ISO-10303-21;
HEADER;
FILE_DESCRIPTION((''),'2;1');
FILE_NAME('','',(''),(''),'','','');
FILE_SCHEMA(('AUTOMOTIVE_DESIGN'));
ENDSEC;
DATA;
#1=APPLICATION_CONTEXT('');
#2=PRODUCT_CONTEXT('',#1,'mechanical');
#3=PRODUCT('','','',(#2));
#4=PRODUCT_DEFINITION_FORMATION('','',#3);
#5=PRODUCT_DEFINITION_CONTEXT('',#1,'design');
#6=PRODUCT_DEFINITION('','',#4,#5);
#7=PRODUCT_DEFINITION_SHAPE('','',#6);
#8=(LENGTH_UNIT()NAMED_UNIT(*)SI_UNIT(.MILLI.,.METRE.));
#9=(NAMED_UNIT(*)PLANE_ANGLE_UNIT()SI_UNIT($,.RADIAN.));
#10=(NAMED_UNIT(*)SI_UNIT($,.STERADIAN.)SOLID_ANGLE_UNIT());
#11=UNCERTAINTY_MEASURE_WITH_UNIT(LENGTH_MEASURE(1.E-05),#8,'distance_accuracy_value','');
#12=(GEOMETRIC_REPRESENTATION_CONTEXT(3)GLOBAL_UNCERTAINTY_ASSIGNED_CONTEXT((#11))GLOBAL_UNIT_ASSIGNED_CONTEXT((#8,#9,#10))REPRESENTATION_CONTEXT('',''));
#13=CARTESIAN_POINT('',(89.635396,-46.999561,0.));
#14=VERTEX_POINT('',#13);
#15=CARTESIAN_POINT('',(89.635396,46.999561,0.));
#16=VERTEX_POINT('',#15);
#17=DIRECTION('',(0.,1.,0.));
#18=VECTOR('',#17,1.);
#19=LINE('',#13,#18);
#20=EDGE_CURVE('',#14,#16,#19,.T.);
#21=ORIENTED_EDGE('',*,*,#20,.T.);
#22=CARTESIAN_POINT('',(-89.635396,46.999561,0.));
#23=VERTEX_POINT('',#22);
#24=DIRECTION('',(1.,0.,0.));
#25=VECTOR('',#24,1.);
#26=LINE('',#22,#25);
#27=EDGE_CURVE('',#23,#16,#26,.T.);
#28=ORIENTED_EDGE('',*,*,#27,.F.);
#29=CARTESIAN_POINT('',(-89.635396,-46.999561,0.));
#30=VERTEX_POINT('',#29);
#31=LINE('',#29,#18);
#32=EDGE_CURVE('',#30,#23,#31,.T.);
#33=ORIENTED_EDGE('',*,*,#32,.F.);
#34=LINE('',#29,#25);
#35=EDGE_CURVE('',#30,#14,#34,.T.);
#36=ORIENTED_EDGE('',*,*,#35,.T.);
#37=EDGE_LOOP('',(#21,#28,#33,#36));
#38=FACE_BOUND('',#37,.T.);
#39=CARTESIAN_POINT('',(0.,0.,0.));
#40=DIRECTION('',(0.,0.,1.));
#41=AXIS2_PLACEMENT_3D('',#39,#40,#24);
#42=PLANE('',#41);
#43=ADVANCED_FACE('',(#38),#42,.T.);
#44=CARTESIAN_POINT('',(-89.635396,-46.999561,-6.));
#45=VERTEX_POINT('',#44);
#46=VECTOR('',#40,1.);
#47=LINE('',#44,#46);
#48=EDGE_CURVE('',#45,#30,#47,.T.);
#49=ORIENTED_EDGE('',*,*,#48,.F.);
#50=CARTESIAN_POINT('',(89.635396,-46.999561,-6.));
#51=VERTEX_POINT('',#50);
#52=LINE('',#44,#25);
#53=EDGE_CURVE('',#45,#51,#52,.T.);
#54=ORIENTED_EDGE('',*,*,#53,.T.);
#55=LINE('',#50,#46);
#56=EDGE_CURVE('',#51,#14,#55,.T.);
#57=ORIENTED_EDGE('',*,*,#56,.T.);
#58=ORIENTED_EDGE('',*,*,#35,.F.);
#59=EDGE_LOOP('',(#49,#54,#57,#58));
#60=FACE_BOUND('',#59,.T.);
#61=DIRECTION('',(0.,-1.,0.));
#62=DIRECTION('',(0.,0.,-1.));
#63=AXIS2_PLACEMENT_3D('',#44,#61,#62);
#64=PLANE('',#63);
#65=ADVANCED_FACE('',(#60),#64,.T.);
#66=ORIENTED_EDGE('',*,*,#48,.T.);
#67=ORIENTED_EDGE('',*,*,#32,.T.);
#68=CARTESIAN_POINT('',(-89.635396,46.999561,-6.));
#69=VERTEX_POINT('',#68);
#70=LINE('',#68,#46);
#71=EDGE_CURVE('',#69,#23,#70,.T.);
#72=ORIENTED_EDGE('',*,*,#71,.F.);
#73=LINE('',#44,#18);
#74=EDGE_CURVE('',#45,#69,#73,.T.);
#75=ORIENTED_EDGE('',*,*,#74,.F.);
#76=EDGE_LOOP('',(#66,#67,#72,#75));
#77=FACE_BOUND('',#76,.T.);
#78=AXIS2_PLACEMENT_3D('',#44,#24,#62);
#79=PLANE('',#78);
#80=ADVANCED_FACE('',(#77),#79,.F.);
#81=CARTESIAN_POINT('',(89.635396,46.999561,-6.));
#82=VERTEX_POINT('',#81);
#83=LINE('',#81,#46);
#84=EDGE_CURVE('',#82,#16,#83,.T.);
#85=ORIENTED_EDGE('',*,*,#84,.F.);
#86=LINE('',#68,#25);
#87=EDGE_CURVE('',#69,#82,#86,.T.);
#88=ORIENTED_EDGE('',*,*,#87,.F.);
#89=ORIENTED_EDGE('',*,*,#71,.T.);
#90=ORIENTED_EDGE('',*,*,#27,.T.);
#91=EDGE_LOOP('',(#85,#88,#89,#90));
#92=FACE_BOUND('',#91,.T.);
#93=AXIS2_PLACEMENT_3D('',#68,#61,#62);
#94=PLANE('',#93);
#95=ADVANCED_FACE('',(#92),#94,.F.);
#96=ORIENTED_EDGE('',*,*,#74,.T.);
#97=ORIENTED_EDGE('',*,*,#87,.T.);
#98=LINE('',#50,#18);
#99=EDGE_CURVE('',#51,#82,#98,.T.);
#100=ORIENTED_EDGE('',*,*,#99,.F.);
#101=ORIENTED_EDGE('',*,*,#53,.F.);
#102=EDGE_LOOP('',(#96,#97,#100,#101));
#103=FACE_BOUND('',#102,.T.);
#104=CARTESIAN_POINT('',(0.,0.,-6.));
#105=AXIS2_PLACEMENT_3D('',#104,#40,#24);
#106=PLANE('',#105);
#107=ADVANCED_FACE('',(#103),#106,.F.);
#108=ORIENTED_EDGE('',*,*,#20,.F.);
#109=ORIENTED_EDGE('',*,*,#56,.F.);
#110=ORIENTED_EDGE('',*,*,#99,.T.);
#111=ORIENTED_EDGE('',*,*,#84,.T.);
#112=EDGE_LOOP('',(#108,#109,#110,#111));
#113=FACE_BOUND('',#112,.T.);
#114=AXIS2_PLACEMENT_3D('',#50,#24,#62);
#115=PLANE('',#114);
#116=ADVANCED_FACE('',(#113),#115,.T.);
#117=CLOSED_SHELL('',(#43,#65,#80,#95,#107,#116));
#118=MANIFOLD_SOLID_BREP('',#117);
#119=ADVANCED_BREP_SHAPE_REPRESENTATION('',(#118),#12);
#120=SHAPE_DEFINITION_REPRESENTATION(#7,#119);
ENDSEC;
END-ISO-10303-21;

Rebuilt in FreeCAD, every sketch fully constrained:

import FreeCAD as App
import Part
import Sketcher

V = App.Vector
Q = App.Units.Quantity


def add_polygon(sketch, points):
    """Adds a closed chain of lines whose ends are joined by coincident constraints."""
    first, n = sketch.GeometryCount, len(points)
    for a, b in zip(points, points[1:] + points[:1]):
        sketch.addGeometry(Part.LineSegment(App.Vector(*a, 0), App.Vector(*b, 0)), False)
    for i in range(n):
        sketch.addConstraint(Sketcher.Constraint("Coincident", first + i, 2, first + (i + 1) % n, 1))

doc = App.newDocument("Part")
body = doc.addObject("PartDesign::Body", "Body")

# Sketch on XY plane
sketch1 = body.newObject("Sketcher::SketchObject", "Sketch")
sketch1.AttachmentSupport = (doc.getObject("XY_Plane"), [""])
sketch1.MapMode = "FlatFace"
add_polygon(sketch1, [(-89.635396, 46.999561), (-89.635396, -46.999561), (89.635396, -46.999561), (89.635396, 46.999561)])  # lines 0-3
sketch1.addConstraint([
    Sketcher.Constraint("Vertical", 0),
    Sketcher.Constraint("Horizontal", 1),
    Sketcher.Constraint("Vertical", 2),
    Sketcher.Constraint("Horizontal", 3),
    Sketcher.Constraint("Symmetric", 0, 2, 2, 2, -1, 1),
    Sketcher.Constraint("DistanceY", 0, 2, 0, 1, Q("93.999122 mm")),
    Sketcher.Constraint("DistanceX", 1, 1, 1, 2, Q("179.270793 mm")),
])
pad1 = body.newObject("PartDesign::Pad", "Pad")
pad1.Profile = sketch1
pad1.Length = 6
pad1.Reversed = True

doc.recompute()
